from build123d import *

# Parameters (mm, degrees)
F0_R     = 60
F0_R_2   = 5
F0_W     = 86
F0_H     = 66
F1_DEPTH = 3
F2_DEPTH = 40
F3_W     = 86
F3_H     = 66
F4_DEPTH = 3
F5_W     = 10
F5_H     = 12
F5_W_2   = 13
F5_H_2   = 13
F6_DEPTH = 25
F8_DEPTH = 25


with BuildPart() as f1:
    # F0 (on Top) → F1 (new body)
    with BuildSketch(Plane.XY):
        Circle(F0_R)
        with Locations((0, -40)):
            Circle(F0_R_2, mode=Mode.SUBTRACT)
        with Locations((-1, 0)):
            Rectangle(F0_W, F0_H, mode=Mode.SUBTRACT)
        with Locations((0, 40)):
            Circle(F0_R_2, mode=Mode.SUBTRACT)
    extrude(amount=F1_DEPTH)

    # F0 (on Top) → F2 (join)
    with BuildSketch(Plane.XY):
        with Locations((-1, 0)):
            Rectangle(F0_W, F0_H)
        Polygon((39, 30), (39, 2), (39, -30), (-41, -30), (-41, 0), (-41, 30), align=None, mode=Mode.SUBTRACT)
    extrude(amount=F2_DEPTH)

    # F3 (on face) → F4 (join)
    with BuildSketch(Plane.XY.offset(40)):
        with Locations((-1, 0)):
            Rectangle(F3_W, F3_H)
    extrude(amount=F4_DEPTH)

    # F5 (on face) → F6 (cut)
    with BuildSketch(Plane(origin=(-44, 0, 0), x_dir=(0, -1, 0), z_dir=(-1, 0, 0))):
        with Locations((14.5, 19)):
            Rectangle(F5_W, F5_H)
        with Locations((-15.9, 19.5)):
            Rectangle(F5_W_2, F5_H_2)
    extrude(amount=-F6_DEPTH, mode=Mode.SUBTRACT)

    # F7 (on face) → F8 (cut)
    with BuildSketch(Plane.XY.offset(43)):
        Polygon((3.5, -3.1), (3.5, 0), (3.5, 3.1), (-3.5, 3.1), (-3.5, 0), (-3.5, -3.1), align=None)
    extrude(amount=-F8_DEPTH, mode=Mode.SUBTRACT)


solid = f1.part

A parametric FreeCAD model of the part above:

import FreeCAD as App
import Part
import Sketcher

V = App.Vector
Q = App.Units.Quantity


def add_polygon(sketch, points):
    """Adds a closed chain of lines whose ends are joined by coincident constraints."""
    first, n = sketch.GeometryCount, len(points)
    for a, b in zip(points, points[1:] + points[:1]):
        sketch.addGeometry(Part.LineSegment(App.Vector(*a, 0), App.Vector(*b, 0)), False)
    for i in range(n):
        sketch.addConstraint(Sketcher.Constraint("Coincident", first + i, 2, first + (i + 1) % n, 1))

doc = App.newDocument("Part")
body = doc.addObject("PartDesign::Body", "Body")

# Sketch on XY plane
sketch1 = body.newObject("Sketcher::SketchObject", "Sketch")
sketch1.AttachmentSupport = (doc.getObject("XY_Plane"), [""])
sketch1.MapMode = "FlatFace"
sketch1.addGeometry(Part.Circle(V(0, 0, 0), V(0, 0, 1), 60), False)  # 0
sketch1.addGeometry(Part.Circle(V(0, -40, 0), V(0, 0, 1), 5), False)  # 1
add_polygon(sketch1, [(42, -33), (-44, -33), (-44, 33), (42, 33)])  # lines 2-5
sketch1.addGeometry(Part.Circle(V(0, 40, 0), V(0, 0, 1), 5), False)  # 6
sketch1.addConstraint([
    Sketcher.Constraint("Horizontal", 2),
    Sketcher.Constraint("Vertical", 3),
    Sketcher.Constraint("Horizontal", 4),
    Sketcher.Constraint("Vertical", 5),
    Sketcher.Constraint("Coincident", 0, 3, -1, 1),
    Sketcher.Constraint("Equal", 1, 6),
    Sketcher.Constraint("Symmetric", 1, 3, 6, 3, -1, 1),
    Sketcher.Constraint("PointOnObject", 1, 3, -2),
    Sketcher.Constraint("Diameter", 0, Q("120 mm")),
    Sketcher.Constraint("Diameter", 1, Q("10 mm")),
    Sketcher.Constraint("DistanceX", 2, 2, 2, 1, Q("86 mm")),
    Sketcher.Constraint("DistanceY", 3, 1, 3, 2, Q("66 mm")),
    Sketcher.Constraint("DistanceY", 1, 3, -1, 1, Q("40 mm")),
    Sketcher.Constraint("DistanceX", 2, 2, -1, 1, Q("44 mm")),
    Sketcher.Constraint("DistanceY", 2, 2, -1, 1, Q("33 mm")),
])
pad1 = body.newObject("PartDesign::Pad", "Pad")
pad1.Profile = sketch1
pad1.Length = 3

# Sketch on XY plane
sketch2 = body.newObject("Sketcher::SketchObject", "Sketch001")
sketch2.AttachmentSupport = (doc.getObject("XY_Plane"), [""])
sketch2.MapMode = "FlatFace"
add_polygon(sketch2, [(-44, 33), (-44, -33), (42, -33), (42, 33)])  # lines 0-3
add_polygon(sketch2, [(-41, 30), (39, 30), (39, -30), (-41, -30)])  # lines 4-7
sketch2.addConstraint([
    Sketcher.Constraint("Vertical", 0),
    Sketcher.Constraint("Horizontal", 1),
    Sketcher.Constraint("Vertical", 2),
    Sketcher.Constraint("Horizontal", 3),
    Sketcher.Constraint("Horizontal", 4),
    Sketcher.Constraint("Vertical", 5),
    Sketcher.Constraint("Horizontal", 6),
    Sketcher.Constraint("Vertical", 7),
    Sketcher.Constraint("DistanceX", 1, 1, 1, 2, Q("86 mm")),
    Sketcher.Constraint("DistanceX", 4, 1, 4, 2, Q("80 mm")),
    Sketcher.Constraint("DistanceY", 0, 2, 0, 1, Q("66 mm")),
    Sketcher.Constraint("DistanceY", 5, 2, 5, 1, Q("60 mm")),
    Sketcher.Constraint("DistanceX", 0, 2, -1, 1, Q("44 mm")),
    Sketcher.Constraint("DistanceY", 0, 2, -1, 1, Q("33 mm")),
    Sketcher.Constraint("DistanceX", -1, 1, 4, 2, Q("39 mm")),
    Sketcher.Constraint("DistanceY", -1, 1, 4, 2, Q("30 mm")),
])
pad2 = body.newObject("PartDesign::Pad", "Pad001")
pad2.Profile = sketch2
pad2.Length = 40

# Sketch on XY plane
sketch3 = body.newObject("Sketcher::SketchObject", "Sketch002")
sketch3.AttachmentSupport = (doc.getObject("XY_Plane"), [""])
sketch3.MapMode = "FlatFace"
sketch3.AttachmentOffset = App.Placement(V(0, 0, 40), App.Rotation())
add_polygon(sketch3, [(-44, 33), (-44, -33), (42, -33), (42, 33)])  # lines 0-3
sketch3.addConstraint([
    Sketcher.Constraint("Vertical", 0),
    Sketcher.Constraint("Horizontal", 1),
    Sketcher.Constraint("Vertical", 2),
    Sketcher.Constraint("Horizontal", 3),
    Sketcher.Constraint("DistanceX", 1, 1, 1, 2, Q("86 mm")),
    Sketcher.Constraint("DistanceY", 0, 2, 0, 1, Q("66 mm")),
    Sketcher.Constraint("DistanceX", 0, 2, -1, 1, Q("44 mm")),
    Sketcher.Constraint("DistanceY", 0, 2, -1, 1, Q("33 mm")),
])
pad3 = body.newObject("PartDesign::Pad", "Pad002")
pad3.Profile = sketch3
pad3.Length = 3

# Sketch on YZ plane
sketch4 = body.newObject("Sketcher::SketchObject", "Sketch003")
sketch4.AttachmentSupport = (doc.getObject("YZ_Plane"), [""])
sketch4.MapMode = "FlatFace"
sketch4.AttachmentOffset = App.Placement(V(0, 0, -44), App.Rotation())
add_polygon(sketch4, [(-10, 25), (-10, 13), (-20, 13), (-20, 25)])  # lines 0-3
add_polygon(sketch4, [(22, 26), (22, 13), (9, 13), (9, 26)])  # lines 4-7
sketch4.addConstraint([
    Sketcher.Constraint("Vertical", 0),
    Sketcher.Constraint("Horizontal", 1),
    Sketcher.Constraint("Vertical", 2),
    Sketcher.Constraint("Horizontal", 3),
    Sketcher.Constraint("Vertical", 4),
    Sketcher.Constraint("Horizontal", 5),
    Sketcher.Constraint("Vertical", 6),
    Sketcher.Constraint("Horizontal", 7),
    Sketcher.Constraint("Horizontal", 1, 2, 4, 2),
    Sketcher.Constraint("Equal", 7, 4),
    Sketcher.Constraint("DistanceX", 1, 2, 1, 1, Q("10 mm")),
    Sketcher.Constraint("DistanceX", 5, 2, 5, 1, Q("13 mm")),
    Sketcher.Constraint("DistanceY", 0, 2, 0, 1, Q("12 mm")),
    Sketcher.Constraint("DistanceY", -1, 1, 0, 2, Q("13 mm")),
    Sketcher.Constraint("DistanceX", 0, 2, -1, 1, Q("9.5 mm")),
    Sketcher.Constraint("DistanceX", -1, 1, 4, 2, Q("22.4 mm")),
])
pocket1 = body.newObject("PartDesign::Pocket", "Pocket")
pocket1.Profile = sketch4
pocket1.Length = 25
pocket1.Reversed = True

# Sketch on XY plane
sketch5 = body.newObject("Sketcher::SketchObject", "Sketch004")
sketch5.AttachmentSupport = (doc.getObject("XY_Plane"), [""])
sketch5.MapMode = "FlatFace"
sketch5.AttachmentOffset = App.Placement(V(0, 0, 43), App.Rotation())
add_polygon(sketch5, [(4, -3), (4, 3), (-4, 3), (-4, -3)])  # lines 0-3
sketch5.addConstraint([
    Sketcher.Constraint("Vertical", 0),
    Sketcher.Constraint("Horizontal", 1),
    Sketcher.Constraint("Vertical", 2),
    Sketcher.Constraint("Horizontal", 3),
    Sketcher.Constraint("Symmetric", 0, 2, 2, 2, -1, 1),
    Sketcher.Constraint("DistanceX", 1, 2, 1, 1, Q("7 mm")),
    Sketcher.Constraint("DistanceY", 0, 1, 0, 2, Q("6.2 mm")),
])
pocket2 = body.newObject("PartDesign::Pocket", "Pocket001")
pocket2.Profile = sketch5
pocket2.Length = 25

doc.recompute()
